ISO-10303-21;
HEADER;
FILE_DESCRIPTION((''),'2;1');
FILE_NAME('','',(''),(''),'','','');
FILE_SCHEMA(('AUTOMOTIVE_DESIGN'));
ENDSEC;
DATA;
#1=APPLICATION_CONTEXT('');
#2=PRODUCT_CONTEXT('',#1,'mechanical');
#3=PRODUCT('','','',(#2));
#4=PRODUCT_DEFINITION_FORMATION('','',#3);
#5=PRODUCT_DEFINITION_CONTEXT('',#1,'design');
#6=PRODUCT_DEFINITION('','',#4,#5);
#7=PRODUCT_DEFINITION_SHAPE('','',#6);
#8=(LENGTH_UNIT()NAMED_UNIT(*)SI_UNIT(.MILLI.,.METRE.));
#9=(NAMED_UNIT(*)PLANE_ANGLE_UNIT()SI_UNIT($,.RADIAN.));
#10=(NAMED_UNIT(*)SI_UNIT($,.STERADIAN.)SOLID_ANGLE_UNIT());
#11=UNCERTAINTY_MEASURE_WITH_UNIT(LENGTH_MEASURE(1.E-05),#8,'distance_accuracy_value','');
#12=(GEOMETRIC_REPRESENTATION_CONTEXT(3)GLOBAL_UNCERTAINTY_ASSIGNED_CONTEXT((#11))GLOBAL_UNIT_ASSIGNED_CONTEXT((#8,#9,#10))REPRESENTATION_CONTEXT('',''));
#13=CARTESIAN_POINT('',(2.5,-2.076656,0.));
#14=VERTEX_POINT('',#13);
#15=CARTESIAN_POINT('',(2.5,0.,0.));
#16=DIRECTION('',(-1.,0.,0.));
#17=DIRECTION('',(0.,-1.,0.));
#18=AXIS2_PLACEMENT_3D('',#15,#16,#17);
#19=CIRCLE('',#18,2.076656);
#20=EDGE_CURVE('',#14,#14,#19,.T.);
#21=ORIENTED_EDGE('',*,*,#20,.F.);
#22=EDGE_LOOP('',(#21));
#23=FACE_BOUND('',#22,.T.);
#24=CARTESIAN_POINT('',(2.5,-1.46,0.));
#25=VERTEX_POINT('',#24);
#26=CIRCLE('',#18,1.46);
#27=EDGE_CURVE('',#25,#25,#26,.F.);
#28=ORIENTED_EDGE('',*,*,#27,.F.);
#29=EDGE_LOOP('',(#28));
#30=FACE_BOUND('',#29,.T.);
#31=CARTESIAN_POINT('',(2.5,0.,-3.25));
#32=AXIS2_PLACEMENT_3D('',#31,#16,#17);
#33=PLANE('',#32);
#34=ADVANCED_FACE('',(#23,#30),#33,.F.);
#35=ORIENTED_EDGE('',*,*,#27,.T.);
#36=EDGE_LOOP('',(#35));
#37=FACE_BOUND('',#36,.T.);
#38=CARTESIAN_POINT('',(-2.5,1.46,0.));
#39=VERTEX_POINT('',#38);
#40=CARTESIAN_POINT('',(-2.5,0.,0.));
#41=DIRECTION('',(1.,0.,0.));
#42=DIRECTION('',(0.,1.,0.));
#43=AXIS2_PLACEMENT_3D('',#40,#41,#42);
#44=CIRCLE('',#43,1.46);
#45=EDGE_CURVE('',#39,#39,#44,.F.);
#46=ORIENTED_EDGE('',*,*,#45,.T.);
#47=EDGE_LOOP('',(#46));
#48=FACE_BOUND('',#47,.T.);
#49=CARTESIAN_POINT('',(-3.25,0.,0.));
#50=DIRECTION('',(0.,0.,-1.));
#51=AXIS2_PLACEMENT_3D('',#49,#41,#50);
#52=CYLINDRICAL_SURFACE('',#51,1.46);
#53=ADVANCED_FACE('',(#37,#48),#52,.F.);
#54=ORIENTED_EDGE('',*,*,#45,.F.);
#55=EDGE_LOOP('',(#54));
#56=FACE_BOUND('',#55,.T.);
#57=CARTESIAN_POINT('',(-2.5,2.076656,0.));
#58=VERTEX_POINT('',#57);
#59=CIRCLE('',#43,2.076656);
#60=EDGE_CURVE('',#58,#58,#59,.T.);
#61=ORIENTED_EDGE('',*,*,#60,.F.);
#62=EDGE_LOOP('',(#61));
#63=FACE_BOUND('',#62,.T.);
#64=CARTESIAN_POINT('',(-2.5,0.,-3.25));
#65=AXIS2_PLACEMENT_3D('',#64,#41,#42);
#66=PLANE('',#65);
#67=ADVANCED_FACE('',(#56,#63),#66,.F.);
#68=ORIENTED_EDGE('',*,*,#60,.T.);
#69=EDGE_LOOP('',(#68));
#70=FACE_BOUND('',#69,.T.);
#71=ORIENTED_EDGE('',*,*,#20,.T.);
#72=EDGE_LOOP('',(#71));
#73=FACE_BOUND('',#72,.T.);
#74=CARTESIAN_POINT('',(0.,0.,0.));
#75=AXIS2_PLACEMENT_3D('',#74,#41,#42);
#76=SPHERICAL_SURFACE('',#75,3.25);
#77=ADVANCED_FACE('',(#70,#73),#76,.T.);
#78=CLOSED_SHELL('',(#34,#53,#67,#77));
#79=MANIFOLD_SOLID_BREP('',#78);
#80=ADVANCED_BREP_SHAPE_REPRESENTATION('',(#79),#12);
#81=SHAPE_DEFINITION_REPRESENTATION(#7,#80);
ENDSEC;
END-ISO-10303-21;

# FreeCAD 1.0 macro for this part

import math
import FreeCAD as App
import Part
import Sketcher

V = App.Vector


def add_polygon(sketch, points):
    """Adds a closed chain of lines whose ends are joined by coincident constraints."""
    first, n = sketch.GeometryCount, len(points)
    for a, b in zip(points, points[1:] + points[:1]):
        sketch.addGeometry(Part.LineSegment(App.Vector(*a, 0), App.Vector(*b, 0)), False)
    for i in range(n):
        sketch.addConstraint(Sketcher.Constraint("Coincident", first + i, 2, first + (i + 1) % n, 1))

doc = App.newDocument("Part")
params = doc.addObject("Spreadsheet::Sheet", "Params")
for row, (alias, value) in enumerate([
    ("sketch1_radius", "3.25 mm"),
    ("revolution_angle", "360 deg"),
    ("sketch2_diameter", "2.92 mm"),
], start=1):
    params.set(f"A{row}", alias)
    params.set(f"B{row}", "=" + value)
    params.setAlias(f"B{row}", alias)

body = doc.addObject("PartDesign::Body", "Body")

sketch1 = doc.addObject("Sketcher::SketchObject", "Sketch")
body.addObject(sketch1)
sketch1.AttachmentSupport = (doc.XY_Plane, [""])
sketch1.MapMode = "FlatFace"
sketch1.addGeometry(Part.LineSegment(V(0, 3.25, 0), V(0, -3.25, 0)), False)
sketch1.addGeometry(Part.ArcOfCircle(Part.Circle(V(0, 0, 0), V(0, 0, 1), 3.25), math.radians(-90), math.radians(90)), False)
sketch1.addConstraint(Sketcher.Constraint("Coincident", 0, 1, 1, 2))
sketch1.addConstraint(Sketcher.Constraint("Coincident", 1, 1, 0, 2))
sketch1.addConstraint(Sketcher.Constraint("Vertical", 0))
sketch1.addConstraint(Sketcher.Constraint("Coincident", 1, 3, -1, 1))
sketch1.addConstraint(Sketcher.Constraint("PointOnObject", 0, 1, -2))
sketch1.addConstraint(Sketcher.Constraint("Radius", 1, 3.25))
sketch1.setExpression("Constraints[5]", "Params.sketch1_radius")
revolution = doc.addObject("PartDesign::Revolution", "Revolution")
body.addObject(revolution)
revolution.Profile = sketch1
revolution.ReferenceAxis = (sketch1, ["V_Axis"])
revolution.setExpression("Angle", "Params.revolution_angle")

sketch2 = doc.addObject("Sketcher::SketchObject", "Sketch001")
body.addObject(sketch2)
sketch2.AttachmentSupport = (doc.YZ_Plane, [""])
sketch2.MapMode = "FlatFace"
sketch2.addGeometry(Part.Circle(V(0, 0, 0), V(0, 0, 1), 1.46), False)
sketch2.addConstraint(Sketcher.Constraint("Coincident", 0, 3, -1, 1))
sketch2.addConstraint(Sketcher.Constraint("Diameter", 0, 2.92))
sketch2.setExpression("Constraints[1]", "Params.sketch2_diameter")
pocket1 = doc.addObject("PartDesign::Pocket", "Pocket")
body.addObject(pocket1)
pocket1.Profile = sketch2
pocket1.Type = "ThroughAll"
pocket1.Midplane = True

sketch3 = doc.addObject("Sketcher::SketchObject", "Sketch002")
body.addObject(sketch3)
sketch3.AttachmentSupport = (doc.XY_Plane, [""])
sketch3.MapMode = "FlatFace"
add_polygon(sketch3, [(2.5, 3.251424), (2.5, -3.25), (2.903601, -3.25), (2.903601, 3.251424)])
add_polygon(sketch3, [(-2.903601, 3.251424), (-2.903601, -3.25), (-2.5, -3.25), (-2.5, 3.251424)])
sketch3.addConstraint(Sketcher.Constraint("Vertical", 0))
sketch3.addConstraint(Sketcher.Constraint("Horizontal", 1))
sketch3.addConstraint(Sketcher.Constraint("Vertical", 2))
sketch3.addConstraint(Sketcher.Constraint("Horizontal", 3))
sketch3.addConstraint(Sketcher.Constraint("Vertical", 4))
sketch3.addConstraint(Sketcher.Constraint("Horizontal", 5))
sketch3.addConstraint(Sketcher.Constraint("Vertical", 6))
sketch3.addConstraint(Sketcher.Constraint("Horizontal", 7))
sketch3.addConstraint(Sketcher.Constraint("Symmetric", 1, 2, 4, 2, -2))
sketch3.addConstraint(Sketcher.Constraint("Symmetric", 3, 2, 6, 2, -2))
sketch3.addConstraint(Sketcher.Constraint("DistanceX", 5, 2, 0, 2, 5.0))
sketch3.addConstraint(Sketcher.Constraint("DistanceY", 0, 2, -1, 1, 3.25))
sketch3.addConstraint(Sketcher.Constraint("DistanceX", 1, 1, 1, 2, 0.403601))
sketch3.addConstraint(Sketcher.Constraint("DistanceY", 0, 2, 0, 1, 6.501424))
pocket2 = doc.addObject("PartDesign::Pocket", "Pocket001")
body.addObject(pocket2)
pocket2.Profile = sketch3
pocket2.Type = "ThroughAll"
pocket2.Midplane = True

doc.recompute()
